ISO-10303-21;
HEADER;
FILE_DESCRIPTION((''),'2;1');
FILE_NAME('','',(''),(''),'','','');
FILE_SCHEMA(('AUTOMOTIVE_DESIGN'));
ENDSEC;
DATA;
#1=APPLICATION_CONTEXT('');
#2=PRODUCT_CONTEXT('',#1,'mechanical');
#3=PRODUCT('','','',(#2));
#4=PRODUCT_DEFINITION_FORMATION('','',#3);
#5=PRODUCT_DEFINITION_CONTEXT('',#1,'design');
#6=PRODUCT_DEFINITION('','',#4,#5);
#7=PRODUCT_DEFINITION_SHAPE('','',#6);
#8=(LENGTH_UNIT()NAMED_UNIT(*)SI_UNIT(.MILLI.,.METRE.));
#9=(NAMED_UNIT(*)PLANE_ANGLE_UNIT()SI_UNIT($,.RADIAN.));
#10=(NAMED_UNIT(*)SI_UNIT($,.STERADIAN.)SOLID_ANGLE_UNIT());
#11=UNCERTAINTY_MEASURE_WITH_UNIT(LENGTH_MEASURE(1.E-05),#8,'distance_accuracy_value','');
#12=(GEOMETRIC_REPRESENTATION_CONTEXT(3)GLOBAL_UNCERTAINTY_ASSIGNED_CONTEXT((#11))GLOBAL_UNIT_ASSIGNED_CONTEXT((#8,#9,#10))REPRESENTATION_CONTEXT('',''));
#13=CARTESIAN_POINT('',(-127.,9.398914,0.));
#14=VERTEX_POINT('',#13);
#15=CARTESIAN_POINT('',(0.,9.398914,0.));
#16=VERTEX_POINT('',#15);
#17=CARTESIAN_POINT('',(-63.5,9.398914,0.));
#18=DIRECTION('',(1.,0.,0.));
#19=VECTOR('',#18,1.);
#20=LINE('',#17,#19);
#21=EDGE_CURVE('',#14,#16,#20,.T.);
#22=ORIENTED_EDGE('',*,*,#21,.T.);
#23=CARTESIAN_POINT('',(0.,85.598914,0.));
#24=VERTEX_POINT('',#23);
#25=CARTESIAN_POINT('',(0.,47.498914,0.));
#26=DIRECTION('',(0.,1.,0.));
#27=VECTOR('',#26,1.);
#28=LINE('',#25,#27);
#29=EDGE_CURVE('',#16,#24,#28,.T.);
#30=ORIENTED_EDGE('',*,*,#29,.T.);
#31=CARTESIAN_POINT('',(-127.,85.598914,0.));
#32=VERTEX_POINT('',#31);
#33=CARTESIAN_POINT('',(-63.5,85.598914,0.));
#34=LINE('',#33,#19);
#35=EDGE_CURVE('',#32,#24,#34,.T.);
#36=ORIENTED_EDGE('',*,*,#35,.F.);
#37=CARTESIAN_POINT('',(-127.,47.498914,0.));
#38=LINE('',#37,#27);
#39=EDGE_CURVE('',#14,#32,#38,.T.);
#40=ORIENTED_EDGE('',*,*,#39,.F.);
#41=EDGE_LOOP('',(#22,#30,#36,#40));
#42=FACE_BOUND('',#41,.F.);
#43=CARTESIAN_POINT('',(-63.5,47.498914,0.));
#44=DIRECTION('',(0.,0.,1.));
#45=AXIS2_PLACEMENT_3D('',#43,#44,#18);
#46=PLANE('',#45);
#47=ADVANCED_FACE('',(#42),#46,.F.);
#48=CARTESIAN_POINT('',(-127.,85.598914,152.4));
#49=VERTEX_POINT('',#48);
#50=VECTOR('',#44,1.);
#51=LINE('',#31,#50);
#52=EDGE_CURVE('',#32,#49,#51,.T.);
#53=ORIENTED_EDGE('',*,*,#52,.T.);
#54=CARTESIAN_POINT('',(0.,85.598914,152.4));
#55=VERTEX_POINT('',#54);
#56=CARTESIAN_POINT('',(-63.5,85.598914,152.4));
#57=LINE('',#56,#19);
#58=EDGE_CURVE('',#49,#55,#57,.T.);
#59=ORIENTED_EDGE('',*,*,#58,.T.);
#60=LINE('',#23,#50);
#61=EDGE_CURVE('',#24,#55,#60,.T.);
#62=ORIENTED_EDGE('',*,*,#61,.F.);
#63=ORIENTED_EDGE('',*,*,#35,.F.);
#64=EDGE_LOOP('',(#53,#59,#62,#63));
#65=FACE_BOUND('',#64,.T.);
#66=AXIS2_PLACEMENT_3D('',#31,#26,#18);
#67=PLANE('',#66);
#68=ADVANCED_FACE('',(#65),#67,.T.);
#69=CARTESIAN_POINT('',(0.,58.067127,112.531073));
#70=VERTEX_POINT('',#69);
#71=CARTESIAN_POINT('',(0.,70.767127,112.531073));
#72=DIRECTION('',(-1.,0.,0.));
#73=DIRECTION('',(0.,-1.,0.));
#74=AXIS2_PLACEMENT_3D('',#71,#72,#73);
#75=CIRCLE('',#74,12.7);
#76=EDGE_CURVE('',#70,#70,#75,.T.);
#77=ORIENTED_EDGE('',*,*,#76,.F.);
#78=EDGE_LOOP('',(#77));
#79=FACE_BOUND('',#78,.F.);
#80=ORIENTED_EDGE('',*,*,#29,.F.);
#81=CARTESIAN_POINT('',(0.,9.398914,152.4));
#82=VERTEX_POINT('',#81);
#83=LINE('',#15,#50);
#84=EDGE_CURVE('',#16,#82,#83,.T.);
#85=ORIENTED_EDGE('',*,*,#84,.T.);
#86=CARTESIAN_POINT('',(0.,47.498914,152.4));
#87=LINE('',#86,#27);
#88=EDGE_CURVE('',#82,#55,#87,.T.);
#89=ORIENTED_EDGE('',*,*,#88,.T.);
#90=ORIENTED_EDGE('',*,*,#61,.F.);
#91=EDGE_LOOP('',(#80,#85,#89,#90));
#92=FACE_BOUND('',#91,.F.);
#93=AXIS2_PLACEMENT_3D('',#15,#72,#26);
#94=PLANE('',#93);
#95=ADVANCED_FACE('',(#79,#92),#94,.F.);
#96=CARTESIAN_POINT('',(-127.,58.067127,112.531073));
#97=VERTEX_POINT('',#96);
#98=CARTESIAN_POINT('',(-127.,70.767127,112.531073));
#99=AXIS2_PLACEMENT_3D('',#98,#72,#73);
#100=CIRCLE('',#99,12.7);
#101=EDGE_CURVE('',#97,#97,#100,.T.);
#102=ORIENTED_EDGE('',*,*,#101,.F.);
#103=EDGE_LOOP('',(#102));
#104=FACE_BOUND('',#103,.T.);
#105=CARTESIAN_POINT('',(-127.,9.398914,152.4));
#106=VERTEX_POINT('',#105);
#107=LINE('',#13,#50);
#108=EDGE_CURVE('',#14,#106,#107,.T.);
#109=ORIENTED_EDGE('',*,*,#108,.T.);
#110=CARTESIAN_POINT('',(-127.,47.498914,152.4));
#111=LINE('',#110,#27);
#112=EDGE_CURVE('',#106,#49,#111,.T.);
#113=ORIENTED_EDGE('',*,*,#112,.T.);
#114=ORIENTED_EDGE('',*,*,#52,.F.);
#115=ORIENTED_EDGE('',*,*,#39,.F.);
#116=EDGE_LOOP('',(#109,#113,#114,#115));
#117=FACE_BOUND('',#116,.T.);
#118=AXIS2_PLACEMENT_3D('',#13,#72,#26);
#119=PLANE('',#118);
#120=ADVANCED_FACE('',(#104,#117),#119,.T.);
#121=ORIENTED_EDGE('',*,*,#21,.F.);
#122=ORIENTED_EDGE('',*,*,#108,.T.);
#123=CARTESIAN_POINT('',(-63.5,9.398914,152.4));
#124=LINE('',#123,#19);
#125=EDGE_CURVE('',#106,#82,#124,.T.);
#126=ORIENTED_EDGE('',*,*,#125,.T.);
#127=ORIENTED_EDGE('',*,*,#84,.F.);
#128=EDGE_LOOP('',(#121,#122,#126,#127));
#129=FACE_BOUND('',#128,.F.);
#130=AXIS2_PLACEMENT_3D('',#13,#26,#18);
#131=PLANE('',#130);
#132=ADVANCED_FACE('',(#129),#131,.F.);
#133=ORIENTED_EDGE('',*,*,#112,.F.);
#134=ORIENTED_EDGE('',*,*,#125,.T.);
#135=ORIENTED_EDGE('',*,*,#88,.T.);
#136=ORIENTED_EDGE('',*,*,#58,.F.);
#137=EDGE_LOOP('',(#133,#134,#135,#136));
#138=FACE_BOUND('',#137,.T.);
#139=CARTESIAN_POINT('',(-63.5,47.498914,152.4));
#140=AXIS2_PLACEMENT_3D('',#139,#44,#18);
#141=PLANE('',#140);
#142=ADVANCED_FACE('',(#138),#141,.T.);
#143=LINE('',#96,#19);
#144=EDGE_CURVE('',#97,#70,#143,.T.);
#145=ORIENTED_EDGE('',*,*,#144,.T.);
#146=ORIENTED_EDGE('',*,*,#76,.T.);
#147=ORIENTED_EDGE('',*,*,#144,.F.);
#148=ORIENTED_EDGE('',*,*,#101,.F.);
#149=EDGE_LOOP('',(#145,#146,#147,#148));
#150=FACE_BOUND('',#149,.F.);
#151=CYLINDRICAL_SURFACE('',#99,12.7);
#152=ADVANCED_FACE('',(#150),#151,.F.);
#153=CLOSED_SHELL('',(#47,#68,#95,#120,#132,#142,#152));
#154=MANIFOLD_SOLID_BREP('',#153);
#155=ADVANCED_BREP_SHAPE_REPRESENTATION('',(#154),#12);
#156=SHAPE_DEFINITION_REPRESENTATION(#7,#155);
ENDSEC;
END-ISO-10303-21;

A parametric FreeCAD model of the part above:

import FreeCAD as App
import Part
import Sketcher

V = App.Vector
Q = App.Units.Quantity

doc = App.newDocument("Part")
body = doc.addObject("PartDesign::Body", "Body")

sketch1 = body.newObject("Sketcher::SketchObject", "Sketch")
sketch1.AttachmentSupport = (doc.getObject("XY_Plane"), [""])
sketch1.MapMode = "FlatFace"
sketch1.addGeometry([
    Part.LineSegment(V(-127, 85.598914, 0), V(-127, 9.398914, 0)),
    Part.LineSegment(V(-127, 9.398914, 0), V(0, 9.398914, 0)),
    Part.LineSegment(V(0, 9.398914, 0), V(0, 85.598914, 0)),
    Part.LineSegment(V(0, 85.598914, 0), V(-127, 85.598914, 0)),
], False)
sketch1.addConstraint([
    Sketcher.Constraint("Coincident", 0, 2, 1, 1),
    Sketcher.Constraint("Coincident", 1, 2, 2, 1),
    Sketcher.Constraint("Coincident", 2, 2, 3, 1),
    Sketcher.Constraint("Coincident", 3, 2, 0, 1),
    Sketcher.Constraint("Vertical", 0),
    Sketcher.Constraint("Horizontal", 1),
    Sketcher.Constraint("Vertical", 2),
    Sketcher.Constraint("Horizontal", 3),
    Sketcher.Constraint("PointOnObject", 1, 2, -2),
    Sketcher.Constraint("DistanceX", 1, 1, 1, 2, Q("5 in")),
    Sketcher.Constraint("DistanceY", 0, 2, 0, 1, Q("3 in")),
    Sketcher.Constraint("DistanceY", -1, 1, 0, 2, Q("9.398914 mm")),
])
pad1 = body.newObject("PartDesign::Pad", "Pad")
pad1.Profile = sketch1
pad1.Length = Q("6 in")

sketch2 = body.newObject("Sketcher::SketchObject", "Sketch001")
sketch2.AttachmentSupport = (doc.getObject("YZ_Plane"), [""])
sketch2.MapMode = "FlatFace"
sketch2.AttachmentOffset = App.Placement(V(0, 0, -5 * 25.4), App.Rotation())
sketch2.addGeometry(Part.Circle(V(70.767127, 112.531073, 0), V(0, 0, 1), 12.7), False)
sketch2.addConstraint([
    Sketcher.Constraint("Diameter", 0, Q("1 in")),
    Sketcher.Constraint("DistanceX", -1, 1, 0, 3, Q("70.767127 mm")),
    Sketcher.Constraint("DistanceY", -1, 1, 0, 3, Q("112.531073 mm")),
])
pocket1 = body.newObject("PartDesign::Pocket", "Pocket")
pocket1.Profile = sketch2
pocket1.Type = "ThroughAll"
pocket1.Reversed = True

doc.recompute()
